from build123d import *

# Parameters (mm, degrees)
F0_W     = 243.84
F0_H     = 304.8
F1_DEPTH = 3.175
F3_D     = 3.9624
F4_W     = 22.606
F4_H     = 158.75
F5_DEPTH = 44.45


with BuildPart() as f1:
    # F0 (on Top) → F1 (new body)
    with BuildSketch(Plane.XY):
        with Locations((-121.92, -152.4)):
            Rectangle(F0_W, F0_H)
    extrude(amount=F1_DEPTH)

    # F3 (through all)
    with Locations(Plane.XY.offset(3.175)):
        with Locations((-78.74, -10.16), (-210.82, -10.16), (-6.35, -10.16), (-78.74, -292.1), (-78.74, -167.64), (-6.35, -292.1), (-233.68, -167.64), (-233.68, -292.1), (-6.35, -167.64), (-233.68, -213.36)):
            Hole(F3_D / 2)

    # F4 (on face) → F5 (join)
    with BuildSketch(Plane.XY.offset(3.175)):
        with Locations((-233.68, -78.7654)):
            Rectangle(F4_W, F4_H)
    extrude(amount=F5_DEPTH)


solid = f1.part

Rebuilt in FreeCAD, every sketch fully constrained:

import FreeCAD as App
import Part
import Sketcher

V = App.Vector
Q = App.Units.Quantity


def add_polygon(sketch, points):
    """Adds a closed chain of lines whose ends are joined by coincident constraints."""
    first, n = sketch.GeometryCount, len(points)
    for a, b in zip(points, points[1:] + points[:1]):
        sketch.addGeometry(Part.LineSegment(App.Vector(*a, 0), App.Vector(*b, 0)), False)
    for i in range(n):
        sketch.addConstraint(Sketcher.Constraint("Coincident", first + i, 2, first + (i + 1) % n, 1))

doc = App.newDocument("Part")
body = doc.addObject("PartDesign::Body", "Body")

sketch1 = body.newObject("Sketcher::SketchObject", "Sketch")
sketch1.AttachmentSupport = (doc.getObject("XY_Plane"), [""])
sketch1.MapMode = "FlatFace"
add_polygon(sketch1, [(-244, 0), (-244, -305), (0, -305), (0, 0)])
sketch1.addConstraint([
    Sketcher.Constraint("Vertical", 0),
    Sketcher.Constraint("Horizontal", 1),
    Sketcher.Constraint("Vertical", 2),
    Sketcher.Constraint("Horizontal", 3),
    Sketcher.Constraint("Coincident", 2, 2, -1, 1),
    Sketcher.Constraint("DistanceY", 0, 2, 0, 1, Q("12 in")),
    Sketcher.Constraint("DistanceX", 1, 1, 1, 2, Q("9.6 in")),
])
pad1 = body.newObject("PartDesign::Pad", "Pad")
pad1.Profile = sketch1
pad1.Length = Q("0.125 in")

sketch2 = body.newObject("Sketcher::SketchObject", "Sketch001")
sketch2.AttachmentSupport = (doc.getObject("XY_Plane"), [""])
sketch2.MapMode = "FlatFace"
sketch2.AttachmentOffset = App.Placement(V(0, 0, 0.125 * 25.4), App.Rotation())
sketch2.addGeometry([
    Part.Circle(V(-78.7, -10.2, 0), V(0, 0, 1), 2),
    Part.Circle(V(-210.8, -10.2, 0), V(0, 0, 1), 2),
    Part.Circle(V(-6.3, -10.2, 0), V(0, 0, 1), 2),
    Part.Circle(V(-78.7, -292.1, 0), V(0, 0, 1), 2),
    Part.Circle(V(-78.7, -167.6, 0), V(0, 0, 1), 2),
    Part.Circle(V(-6.3, -292.1, 0), V(0, 0, 1), 2),
    Part.Circle(V(-233.7, -167.6, 0), V(0, 0, 1), 2),
    Part.Circle(V(-233.7, -292.1, 0), V(0, 0, 1), 2),
    Part.Circle(V(-6.3, -167.6, 0), V(0, 0, 1), 2),
    Part.Circle(V(-233.7, -213.4, 0), V(0, 0, 1), 2),
], False)
sketch2.addConstraint([
    Sketcher.Constraint("Equal", 0, 1),
    Sketcher.Constraint("Equal", 1, 2),
    Sketcher.Constraint("Equal", 2, 3),
    Sketcher.Constraint("Equal", 3, 4),
    Sketcher.Constraint("Equal", 4, 5),
    Sketcher.Constraint("Equal", 5, 6),
    Sketcher.Constraint("Equal", 6, 7),
    Sketcher.Constraint("Equal", 7, 8),
    Sketcher.Constraint("Equal", 8, 9),
    Sketcher.Constraint("Horizontal", 0, 3, 1, 3),
    Sketcher.Constraint("Horizontal", 1, 3, 2, 3),
    Sketcher.Constraint("Horizontal", 3, 3, 5, 3),
    Sketcher.Constraint("Horizontal", 4, 3, 6, 3),
    Sketcher.Constraint("Horizontal", 5, 3, 7, 3),
    Sketcher.Constraint("Horizontal", 6, 3, 8, 3),
    Sketcher.Constraint("Vertical", 0, 3, 3, 3),
    Sketcher.Constraint("Vertical", 3, 3, 4, 3),
    Sketcher.Constraint("Vertical", 2, 3, 5, 3),
    Sketcher.Constraint("Vertical", 6, 3, 7, 3),
    Sketcher.Constraint("Vertical", 5, 3, 8, 3),
    Sketcher.Constraint("Vertical", 7, 3, 9, 3),
    Sketcher.Constraint("Diameter", 0, Q("0.156 in")),
    Sketcher.Constraint("DistanceY", 9, 3, 1, 3, Q("8 in")),
    Sketcher.Constraint("DistanceX", 0, 3, -1, 1, Q("3.1 in")),
    Sketcher.Constraint("DistanceY", 0, 3, -1, 1, Q("0.4 in")),
    Sketcher.Constraint("DistanceX", 1, 3, -1, 1, Q("8.3 in")),
    Sketcher.Constraint("DistanceY", 3, 3, -1, 1, Q("11.5 in")),
    Sketcher.Constraint("DistanceY", 4, 3, -1, 1, Q("6.6 in")),
    Sketcher.Constraint("DistanceX", 6, 3, -1, 1, Q("9.2 in")),
    Sketcher.Constraint("DistanceX", 2, 3, -1, 1, Q("0.25 in")),
])
doc.recompute()
hole = body.newObject("PartDesign::Hole", "Hole")
hole.Profile = sketch2
hole.ThreadType = "None"
hole.Diameter = Q("0.156 in")
hole.DepthType = "ThroughAll"

sketch3 = body.newObject("Sketcher::SketchObject", "Sketch002")
sketch3.AttachmentSupport = (doc.getObject("XY_Plane"), [""])
sketch3.MapMode = "FlatFace"
sketch3.AttachmentOffset = App.Placement(V(0, 0, 0.125 * 25.4), App.Rotation())
add_polygon(sketch3, [(-245, 1), (-245, -158), (-222, -158), (-222, 1)])
sketch3.addConstraint([
    Sketcher.Constraint("Vertical", 0),
    Sketcher.Constraint("Horizontal", 1),
    Sketcher.Constraint("Vertical", 2),
    Sketcher.Constraint("Horizontal", 3),
    Sketcher.Constraint("DistanceX", 1, 1, 1, 2, Q("0.89 in")),
    Sketcher.Constraint("DistanceY", 0, 2, 0, 1, Q("6.25 in")),
    Sketcher.Constraint("DistanceX", 0, 2, -1, 1, Q("9.645 in")),
    Sketcher.Constraint("DistanceY", 0, 2, -1, 1, Q("6.226 in")),
])
pad2 = body.newObject("PartDesign::Pad", "Pad001")
pad2.Profile = sketch3
pad2.Length = Q("1.75 in")

doc.recompute()
